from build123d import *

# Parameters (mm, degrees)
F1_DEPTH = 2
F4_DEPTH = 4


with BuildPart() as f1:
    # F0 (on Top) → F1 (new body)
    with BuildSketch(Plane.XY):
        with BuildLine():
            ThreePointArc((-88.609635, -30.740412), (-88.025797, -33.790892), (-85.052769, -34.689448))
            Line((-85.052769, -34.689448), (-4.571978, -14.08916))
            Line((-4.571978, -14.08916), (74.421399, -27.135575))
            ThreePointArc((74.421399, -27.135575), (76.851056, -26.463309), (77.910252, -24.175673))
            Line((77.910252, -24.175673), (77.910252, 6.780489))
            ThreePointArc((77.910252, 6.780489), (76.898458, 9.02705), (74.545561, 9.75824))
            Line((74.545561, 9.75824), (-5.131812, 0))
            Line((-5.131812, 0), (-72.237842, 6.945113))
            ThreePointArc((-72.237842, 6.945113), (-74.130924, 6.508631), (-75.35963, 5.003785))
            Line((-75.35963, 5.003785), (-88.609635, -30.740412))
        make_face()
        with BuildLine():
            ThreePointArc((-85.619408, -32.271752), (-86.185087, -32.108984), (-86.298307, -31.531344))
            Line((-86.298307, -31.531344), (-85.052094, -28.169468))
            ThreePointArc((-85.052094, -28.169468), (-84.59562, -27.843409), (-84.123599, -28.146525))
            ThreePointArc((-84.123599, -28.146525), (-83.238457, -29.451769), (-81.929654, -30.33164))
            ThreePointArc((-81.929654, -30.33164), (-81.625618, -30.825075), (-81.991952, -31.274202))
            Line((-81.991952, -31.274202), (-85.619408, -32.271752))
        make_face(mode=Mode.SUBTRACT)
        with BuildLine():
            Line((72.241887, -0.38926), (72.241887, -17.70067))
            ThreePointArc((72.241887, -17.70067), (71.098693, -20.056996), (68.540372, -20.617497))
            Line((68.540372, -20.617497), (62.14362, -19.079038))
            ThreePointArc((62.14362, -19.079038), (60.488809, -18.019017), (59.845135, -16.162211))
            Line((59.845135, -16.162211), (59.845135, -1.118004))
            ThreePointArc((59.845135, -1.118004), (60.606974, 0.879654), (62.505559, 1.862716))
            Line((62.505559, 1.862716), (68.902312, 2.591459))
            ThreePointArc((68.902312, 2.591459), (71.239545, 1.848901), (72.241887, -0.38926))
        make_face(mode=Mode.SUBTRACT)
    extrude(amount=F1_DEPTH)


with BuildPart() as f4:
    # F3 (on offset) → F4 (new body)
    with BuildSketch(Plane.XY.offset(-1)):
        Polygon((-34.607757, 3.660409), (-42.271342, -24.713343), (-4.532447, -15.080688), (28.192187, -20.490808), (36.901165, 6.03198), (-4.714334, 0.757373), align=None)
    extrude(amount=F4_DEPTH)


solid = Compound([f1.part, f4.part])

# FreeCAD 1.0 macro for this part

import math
import FreeCAD as App
import Part
import Sketcher
Q = App.Units.Quantity

doc = App.newDocument("Part")
body = doc.addObject("PartDesign::Body", "Body")

sketch1 = body.newObject("Sketcher::SketchObject", "Sketch")
sketch1.AttachmentSupport = (doc.getObject("XY_Plane"), [""])
sketch1.MapMode = "FlatFace"
sketch1.addGeometry(Part.ArcOfCircle(Part.Circle(App.Vector(-85.796682, -31.783146, 0), App.Vector(0, 0, 1), 3), math.radians(159.660757), math.radians(284.357478)), False)
sketch1.addGeometry(Part.LineSegment(App.Vector(-85.052769, -34.689448, 0), App.Vector(-4.571978, -14.08916, 0)), False)
sketch1.addGeometry(Part.LineSegment(App.Vector(-4.571978, -14.08916, 0), App.Vector(74.421399, -27.135575, 0)), False)
sketch1.addGeometry(Part.ArcOfCircle(Part.Circle(App.Vector(74.910252, -24.175673, 0), App.Vector(0, 0, 1), 3), math.radians(-99.378231), math.radians(-0.000003)), False)
sketch1.addGeometry(Part.LineSegment(App.Vector(77.910252, -24.175673, 0), App.Vector(77.910252, 6.780489, 0)), False)
sketch1.addGeometry(Part.ArcOfCircle(Part.Circle(App.Vector(74.910252, 6.780489, 0), App.Vector(0, 0, 1), 3), math.radians(0.000005), math.radians(96.982348)), False)
sketch1.addGeometry(Part.LineSegment(App.Vector(74.545561, 9.75824, 0), App.Vector(-5.131812, 0, 0)), False)
sketch1.addGeometry(Part.LineSegment(App.Vector(-5.131812, 0, 0), App.Vector(-72.237842, 6.945113, 0)), False)
sketch1.addGeometry(Part.ArcOfCircle(Part.Circle(App.Vector(-72.546676, 3.961052, 0), App.Vector(0, 0, 1), 3), math.radians(84.091228), math.radians(159.66077)), False)
sketch1.addGeometry(Part.LineSegment(App.Vector(-75.35963, 5.003785, 0), App.Vector(-88.609635, -30.740412, 0)), False)
sketch1.addGeometry(Part.LineSegment(App.Vector(-81.991952, -31.274202, 0), App.Vector(-85.619408, -32.271752, 0)), False)
sketch1.addGeometry(Part.ArcOfCircle(Part.Circle(App.Vector(-85.76907, -31.727527, 0), App.Vector(0, 0, 1), 0.564429), math.radians(159.660745), math.radians(285.376266)), False)
sketch1.addGeometry(Part.LineSegment(App.Vector(-86.298307, -31.531344, 0), App.Vector(-85.052094, -28.169468, 0)), False)
sketch1.addGeometry(Part.ArcOfCircle(Part.Circle(App.Vector(-84.583269, -28.343256, 0), App.Vector(0, 0, 1), 0.499999), math.radians(23.170084), math.radians(159.660884)), False)
sketch1.addGeometry(Part.ArcOfCircle(Part.Circle(App.Vector(-80.315002, -26.5165, 0), App.Vector(0, 0, 1), 4.142752), math.radians(-156.82977), math.radians(-112.939166)), False)
sketch1.addGeometry(Part.ArcOfCircle(Part.Circle(App.Vector(-82.124529, -30.7921, 0), App.Vector(0, 0, 1), 0.499999), math.radians(-74.62391), math.radians(67.061058)), False)
sketch1.addGeometry(Part.ArcOfCircle(Part.Circle(App.Vector(69.241888, -0.389259, 0), App.Vector(0, 0, 1), 2.999999), math.radians(-0.000022), math.radians(96.499366)), False)
sketch1.addGeometry(Part.LineSegment(App.Vector(72.241887, -0.38926, 0), App.Vector(72.241887, -17.70067, 0)), False)
sketch1.addGeometry(Part.ArcOfCircle(Part.Circle(App.Vector(69.241887, -17.70067, 0), App.Vector(0, 0, 1), 3), math.radians(-103.523145), math.radians(-0.000001)), False)
sketch1.addGeometry(Part.LineSegment(App.Vector(68.540372, -20.617497, 0), App.Vector(62.14362, -19.079038, 0)), False)
sketch1.addGeometry(Part.ArcOfCircle(Part.Circle(App.Vector(62.845136, -16.162211, 0), App.Vector(0, 0, 1), 3.000001), math.radians(-179.999999), math.radians(-103.523167)), False)
sketch1.addGeometry(Part.LineSegment(App.Vector(59.845135, -16.162211, 0), App.Vector(59.845135, -1.118004, 0)), False)
sketch1.addGeometry(Part.ArcOfCircle(Part.Circle(App.Vector(62.845135, -1.118004, 0), App.Vector(0, 0, 1), 3), math.radians(96.499355), math.radians(180.000009)), False)
sketch1.addGeometry(Part.LineSegment(App.Vector(62.505559, 1.862716, 0), App.Vector(68.902312, 2.591459, 0)), False)
sketch1.addConstraint(Sketcher.Constraint("Coincident", 0, 2, 1, 1))
sketch1.addConstraint(Sketcher.Constraint("Coincident", 1, 2, 2, 1))
sketch1.addConstraint(Sketcher.Constraint("Coincident", 2, 2, 3, 1))
sketch1.addConstraint(Sketcher.Constraint("Coincident", 3, 2, 4, 1))
sketch1.addConstraint(Sketcher.Constraint("Coincident", 4, 2, 5, 1))
sketch1.addConstraint(Sketcher.Constraint("Coincident", 5, 2, 6, 1))
sketch1.addConstraint(Sketcher.Constraint("Coincident", 6, 2, 7, 1))
sketch1.addConstraint(Sketcher.Constraint("Coincident", 7, 2, 8, 1))
sketch1.addConstraint(Sketcher.Constraint("Coincident", 8, 2, 9, 1))
sketch1.addConstraint(Sketcher.Constraint("Coincident", 9, 2, 0, 1))
sketch1.addConstraint(Sketcher.Constraint("Coincident", 10, 2, 11, 2))
sketch1.addConstraint(Sketcher.Constraint("Coincident", 11, 1, 12, 1))
sketch1.addConstraint(Sketcher.Constraint("Coincident", 12, 2, 13, 2))
sketch1.addConstraint(Sketcher.Constraint("Coincident", 13, 1, 14, 1))
sketch1.addConstraint(Sketcher.Constraint("Coincident", 14, 2, 15, 2))
sketch1.addConstraint(Sketcher.Constraint("Coincident", 15, 1, 10, 1))
sketch1.addConstraint(Sketcher.Constraint("Coincident", 16, 1, 17, 1))
sketch1.addConstraint(Sketcher.Constraint("Coincident", 17, 2, 18, 2))
sketch1.addConstraint(Sketcher.Constraint("Coincident", 18, 1, 19, 1))
sketch1.addConstraint(Sketcher.Constraint("Coincident", 19, 2, 20, 2))
sketch1.addConstraint(Sketcher.Constraint("Coincident", 20, 1, 21, 1))
sketch1.addConstraint(Sketcher.Constraint("Coincident", 21, 2, 22, 2))
sketch1.addConstraint(Sketcher.Constraint("Coincident", 22, 1, 23, 1))
sketch1.addConstraint(Sketcher.Constraint("Coincident", 23, 2, 16, 2))
sketch1.addConstraint(Sketcher.Constraint("Vertical", 4))
sketch1.addConstraint(Sketcher.Constraint("Vertical", 17))
sketch1.addConstraint(Sketcher.Constraint("Vertical", 21))
sketch1.addConstraint(Sketcher.Constraint("PointOnObject", 6, 2, -1))
sketch1.addConstraint(Sketcher.Constraint("Radius", 0, Q("3 mm")))
sketch1.addConstraint(Sketcher.Constraint("Radius", 3, Q("3 mm")))
sketch1.addConstraint(Sketcher.Constraint("Radius", 5, Q("3 mm")))
sketch1.addConstraint(Sketcher.Constraint("Radius", 8, Q("3 mm")))
sketch1.addConstraint(Sketcher.Constraint("Radius", 16, Q("2.999999 mm")))
sketch1.addConstraint(Sketcher.Constraint("Radius", 18, Q("3 mm")))
sketch1.addConstraint(Sketcher.Constraint("Radius", 20, Q("3.000001 mm")))
sketch1.addConstraint(Sketcher.Constraint("Radius", 22, Q("3 mm")))
sketch1.addConstraint(Sketcher.Constraint("Radius", 13, Q("0.499999 mm")))
sketch1.addConstraint(Sketcher.Constraint("Radius", 15, Q("0.499999 mm")))
sketch1.addConstraint(Sketcher.Constraint("Radius", 11, Q("0.564429 mm")))
sketch1.addConstraint(Sketcher.Constraint("DistanceX", 14, 3, -1, 1, Q("80.315002 mm")))
sketch1.addConstraint(Sketcher.Constraint("Radius", 14, Q("4.142752 mm")))
sketch1.addConstraint(Sketcher.Constraint("DistanceY", 4, 1, 4, 2, Q("30.956162 mm")))
sketch1.addConstraint(Sketcher.Constraint("DistanceY", 17, 2, 17, 1, Q("17.31141 mm")))
sketch1.addConstraint(Sketcher.Constraint("DistanceY", 14, 3, -1, 1, Q("26.5165 mm")))
sketch1.addConstraint(Sketcher.Constraint("DistanceY", 15, 3, -1, 1, Q("30.7921 mm")))
sketch1.addConstraint(Sketcher.Constraint("DistanceX", -1, 1, 2, 2, Q("74.421399 mm")))
sketch1.addConstraint(Sketcher.Constraint("DistanceX", 13, 1, -1, 1, Q("84.123599 mm")))
sketch1.addConstraint(Sketcher.Constraint("DistanceY", 15, 1, -1, 1, Q("31.274202 mm")))
sketch1.addConstraint(Sketcher.Constraint("DistanceX", 11, 3, 13, 3, Q("1.185801 mm")))
sketch1.addConstraint(Sketcher.Constraint("DistanceY", 20, 3, 5, 3, Q("22.9427 mm")))
sketch1.addConstraint(Sketcher.Constraint("DistanceX", 11, 3, 0, 2, Q("0.716301 mm")))
sketch1.addConstraint(Sketcher.Constraint("DistanceX", 8, 3, 1, 2, Q("67.974698 mm")))
sketch1.addConstraint(Sketcher.Constraint("DistanceY", 1, 2, 16, 3, Q("13.699901 mm")))
sketch1.addConstraint(Sketcher.Constraint("DistanceY", 2, 2, 3, 2, Q("2.959902 mm")))
sketch1.addConstraint(Sketcher.Constraint("DistanceY", 20, 3, 4, 2, Q("22.9427 mm")))
sketch1.addConstraint(Sketcher.Constraint("DistanceY", 16, 3, 5, 2, Q("10.147499 mm")))
sketch1.addConstraint(Sketcher.Constraint("DistanceX", 6, 2, 16, 3, Q("74.3737 mm")))
sketch1.addConstraint(Sketcher.Constraint("DistanceX", 15, 3, 8, 2, Q("6.764899 mm")))
sketch1.addConstraint(Sketcher.Constraint("DistanceY", 0, 3, 11, 1, Q("0.251802 mm")))
sketch1.addConstraint(Sketcher.Constraint("DistanceX", 11, 1, 10, 2, Q("0.678899 mm")))
sketch1.addConstraint(Sketcher.Constraint("DistanceX", 15, 1, 14, 2, Q("0.062298 mm")))
sketch1.addConstraint(Sketcher.Constraint("DistanceY", 16, 1, 5, 2, Q("10.1475 mm")))
sketch1.addConstraint(Sketcher.Constraint("Distance", 2, Q("80.063491 mm")))
sketch1.addConstraint(Sketcher.Constraint("Distance", 10, Q("3.762119 mm")))
sketch1.addConstraint(Sketcher.Constraint("Distance", 23, Q("6.43813 mm")))
sketch1.addConstraint(Sketcher.Constraint("DistanceY", 21, 1, 21, 2, Q("15.044207 mm")))
sketch1.addConstraint(Sketcher.Constraint("DistanceX", 0, 3, -1, 1, Q("85.796682 mm")))
sketch1.addConstraint(Sketcher.Constraint("DistanceX", -1, 1, 5, 3, Q("74.910252 mm")))
sketch1.addConstraint(Sketcher.Constraint("DistanceY", -1, 1, 5, 3, Q("6.780489 mm")))
sketch1.addConstraint(Sketcher.Constraint("DistanceY", -1, 1, 8, 3, Q("3.961052 mm")))
sketch1.addConstraint(Sketcher.Constraint("DistanceX", 11, 3, -1, 1, Q("85.76907 mm")))
sketch1.addConstraint(Sketcher.Constraint("DistanceX", -1, 1, 16, 3, Q("69.241888 mm")))
sketch1.addConstraint(Sketcher.Constraint("DistanceY", 16, 3, -1, 1, Q("0.389259 mm")))
sketch1.addConstraint(Sketcher.Constraint("DistanceY", 18, 3, -1, 1, Q("17.70067 mm")))
sketch1.addConstraint(Sketcher.Constraint("DistanceX", 7, 2, -1, 1, Q("72.237842 mm")))
sketch1.addConstraint(Sketcher.Constraint("DistanceY", 9, 2, -1, 1, Q("30.740412 mm")))
sketch1.addConstraint(Sketcher.Constraint("DistanceX", 10, 2, -1, 1, Q("85.619408 mm")))
sketch1.addConstraint(Sketcher.Constraint("DistanceX", -1, 1, 19, 2, Q("62.14362 mm")))
sketch1.addConstraint(Sketcher.Constraint("DistanceY", 19, 2, -1, 1, Q("19.079038 mm")))
sketch1.addConstraint(Sketcher.Constraint("DistanceY", 20, 1, -1, 1, Q("16.162211 mm")))
sketch1.addConstraint(Sketcher.Constraint("DistanceX", -1, 1, 22, 1, Q("62.505559 mm")))
sketch1.addConstraint(Sketcher.Constraint("DistanceX", -1, 1, 23, 2, Q("68.902312 mm")))
sketch1.addConstraint(Sketcher.Constraint("DistanceY", 11, 3, 12, 2, Q("3.558059 mm")))
sketch1.addConstraint(Sketcher.Constraint("DistanceX", 18, 1, 3, 3, Q("6.36988 mm")))
pad1 = body.newObject("PartDesign::Pad", "Pad")
pad1.Profile = sketch1
pad1.Length = 2
body2 = doc.addObject("PartDesign::Body", "Body001")

sketch2 = body2.newObject("Sketcher::SketchObject", "Sketch001")
sketch2.AttachmentSupport = (doc.getObject("XY_Plane001"), [""])
sketch2.MapMode = "FlatFace"
sketch2.AttachmentOffset = App.Placement(App.Vector(0, 0, -1), App.Rotation())
sketch2.addGeometry(Part.LineSegment(App.Vector(-35, 4, 0), App.Vector(-42, -25, 0)), False)
sketch2.addGeometry(Part.LineSegment(App.Vector(-42, -25, 0), App.Vector(-5, -15, 0)), False)
sketch2.addGeometry(Part.LineSegment(App.Vector(-5, -15, 0), App.Vector(28, -20, 0)), False)
sketch2.addGeometry(Part.LineSegment(App.Vector(28, -20, 0), App.Vector(37, 6, 0)), False)
sketch2.addGeometry(Part.LineSegment(App.Vector(37, 6, 0), App.Vector(-5, 1, 0)), False)
sketch2.addGeometry(Part.LineSegment(App.Vector(-5, 1, 0), App.Vector(-35, 4, 0)), False)
sketch2.addConstraint(Sketcher.Constraint("Coincident", 0, 2, 1, 1))
sketch2.addConstraint(Sketcher.Constraint("Coincident", 1, 2, 2, 1))
sketch2.addConstraint(Sketcher.Constraint("Coincident", 2, 2, 3, 1))
sketch2.addConstraint(Sketcher.Constraint("Coincident", 3, 2, 4, 1))
sketch2.addConstraint(Sketcher.Constraint("Coincident", 4, 2, 5, 1))
sketch2.addConstraint(Sketcher.Constraint("Coincident", 5, 2, 0, 1))
sketch2.addConstraint(Sketcher.Constraint("DistanceX", 4, 2, 3, 2, Q("41.615499 mm")))
sketch2.addConstraint(Sketcher.Constraint("Distance", 0, Q("29.39048 mm")))
sketch2.addConstraint(Sketcher.Constraint("Distance", 1, Q("38.948841 mm")))
sketch2.addConstraint(Sketcher.Constraint("DistanceX", 0, 2, -1, 1, Q("42.271342 mm")))
sketch2.addConstraint(Sketcher.Constraint("DistanceY", 2, 2, -1, 1, Q("20.490808 mm")))
sketch2.addConstraint(Sketcher.Constraint("DistanceY", -1, 1, 3, 2, Q("6.03198 mm")))
sketch2.addConstraint(Sketcher.Constraint("DistanceY", -1, 1, 5, 2, Q("3.660409 mm")))
sketch2.addConstraint(Sketcher.Constraint("DistanceY", 2, 2, 1, 2, Q("5.41012 mm")))
sketch2.addConstraint(Sketcher.Constraint("DistanceX", 0, 2, 2, 2, Q("70.463529 mm")))
sketch2.addConstraint(Sketcher.Constraint("DistanceX", 1, 2, 3, 2, Q("41.433612 mm")))
sketch2.addConstraint(Sketcher.Constraint("DistanceY", 1, 2, 4, 2, Q("15.838061 mm")))
sketch2.addConstraint(Sketcher.Constraint("DistanceX", 4, 2, 2, 2, Q("32.906521 mm")))
pad2 = body2.newObject("PartDesign::Pad", "Pad001")
pad2.Profile = sketch2
pad2.Length = 4

doc.recompute()
